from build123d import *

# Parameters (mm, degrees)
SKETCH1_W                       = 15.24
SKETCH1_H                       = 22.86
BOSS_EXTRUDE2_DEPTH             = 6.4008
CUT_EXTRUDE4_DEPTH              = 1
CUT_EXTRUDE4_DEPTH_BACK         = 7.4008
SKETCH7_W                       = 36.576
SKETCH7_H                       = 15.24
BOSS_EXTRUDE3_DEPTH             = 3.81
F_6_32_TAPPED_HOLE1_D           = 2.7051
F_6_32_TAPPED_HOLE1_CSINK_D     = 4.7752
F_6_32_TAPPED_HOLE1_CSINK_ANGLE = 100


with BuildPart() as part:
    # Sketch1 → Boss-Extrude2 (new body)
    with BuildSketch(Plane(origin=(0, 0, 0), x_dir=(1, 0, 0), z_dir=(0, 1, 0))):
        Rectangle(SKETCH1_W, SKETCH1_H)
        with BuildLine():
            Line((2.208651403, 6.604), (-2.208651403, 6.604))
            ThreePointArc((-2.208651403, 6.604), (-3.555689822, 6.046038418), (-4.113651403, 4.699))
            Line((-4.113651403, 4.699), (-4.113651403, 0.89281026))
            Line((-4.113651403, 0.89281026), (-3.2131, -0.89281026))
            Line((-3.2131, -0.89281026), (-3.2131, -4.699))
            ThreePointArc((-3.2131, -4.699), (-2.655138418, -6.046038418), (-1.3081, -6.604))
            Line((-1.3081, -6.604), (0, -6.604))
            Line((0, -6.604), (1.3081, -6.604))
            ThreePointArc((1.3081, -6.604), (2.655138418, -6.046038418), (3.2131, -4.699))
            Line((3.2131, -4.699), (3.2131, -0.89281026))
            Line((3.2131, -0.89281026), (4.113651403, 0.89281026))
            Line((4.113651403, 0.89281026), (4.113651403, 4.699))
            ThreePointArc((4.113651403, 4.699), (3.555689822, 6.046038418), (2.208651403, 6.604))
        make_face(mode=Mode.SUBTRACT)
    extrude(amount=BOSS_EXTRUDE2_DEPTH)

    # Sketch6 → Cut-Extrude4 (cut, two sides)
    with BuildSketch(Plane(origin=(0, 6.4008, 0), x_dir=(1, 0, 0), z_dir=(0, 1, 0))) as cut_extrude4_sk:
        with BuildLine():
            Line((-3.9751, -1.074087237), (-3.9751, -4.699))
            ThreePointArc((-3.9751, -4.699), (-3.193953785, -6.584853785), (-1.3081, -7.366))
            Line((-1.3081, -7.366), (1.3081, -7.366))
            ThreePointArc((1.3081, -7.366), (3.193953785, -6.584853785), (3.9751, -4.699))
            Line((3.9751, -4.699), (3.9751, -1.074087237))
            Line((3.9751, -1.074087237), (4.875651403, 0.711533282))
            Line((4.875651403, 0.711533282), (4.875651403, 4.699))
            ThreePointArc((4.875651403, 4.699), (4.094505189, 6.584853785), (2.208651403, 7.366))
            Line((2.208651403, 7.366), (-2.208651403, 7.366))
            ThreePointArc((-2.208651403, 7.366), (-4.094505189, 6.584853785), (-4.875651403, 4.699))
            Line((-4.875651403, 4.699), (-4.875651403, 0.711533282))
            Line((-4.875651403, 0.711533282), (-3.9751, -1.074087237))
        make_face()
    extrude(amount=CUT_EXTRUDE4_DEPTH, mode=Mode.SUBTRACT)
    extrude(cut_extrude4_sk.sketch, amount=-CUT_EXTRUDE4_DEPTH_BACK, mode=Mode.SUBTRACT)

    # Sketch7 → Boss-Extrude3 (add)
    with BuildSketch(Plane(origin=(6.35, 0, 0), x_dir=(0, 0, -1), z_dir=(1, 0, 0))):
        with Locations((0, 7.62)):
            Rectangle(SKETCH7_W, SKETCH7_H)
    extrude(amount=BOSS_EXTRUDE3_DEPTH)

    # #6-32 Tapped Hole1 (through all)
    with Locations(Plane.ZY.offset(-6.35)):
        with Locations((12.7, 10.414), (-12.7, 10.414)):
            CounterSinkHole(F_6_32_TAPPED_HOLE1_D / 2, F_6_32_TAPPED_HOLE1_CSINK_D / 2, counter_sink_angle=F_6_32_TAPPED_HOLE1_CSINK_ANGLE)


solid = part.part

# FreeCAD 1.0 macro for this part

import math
import FreeCAD as App
import Part
import Sketcher
Q = App.Units.Quantity

doc = App.newDocument("Part")
body = doc.addObject("PartDesign::Body", "Body")

sketch1 = body.newObject("Sketcher::SketchObject", "Sketch")
sketch1.AttachmentSupport = (doc.getObject("XZ_Plane"), [""])
sketch1.MapMode = "FlatFace"
sketch1.addGeometry([
    Part.LineSegment(App.Vector(-7.62, -11.43, 0), App.Vector(-7.62, 11.43, 0)),
    Part.LineSegment(App.Vector(-7.62, 11.43, 0), App.Vector(7.62, 11.43, 0)),
    Part.LineSegment(App.Vector(7.62, 11.43, 0), App.Vector(7.62, -11.43, 0)),
    Part.LineSegment(App.Vector(7.62, -11.43, 0), App.Vector(-7.62, -11.43, 0)),
    Part.LineSegment(App.Vector(-2.208651, -6.604, 0), App.Vector(2.208651, -6.604, 0)),
    Part.ArcOfCircle(Part.Circle(App.Vector(2.208651, -4.699, 0), App.Vector(0, 0, 1), 1.905), math.radians(-90), math.radians(0)),
    Part.LineSegment(App.Vector(4.113651, -4.699, 0), App.Vector(4.113651, -0.89281, 0)),
    Part.LineSegment(App.Vector(4.113651, -0.89281, 0), App.Vector(3.2131, 0.89281, 0)),
    Part.LineSegment(App.Vector(3.2131, 0.89281, 0), App.Vector(3.2131, 4.699, 0)),
    Part.ArcOfCircle(Part.Circle(App.Vector(1.3081, 4.699, 0), App.Vector(0, 0, 1), 1.905), math.radians(0), math.radians(90)),
    Part.LineSegment(App.Vector(1.3081, 6.604, 0), App.Vector(-1.3081, 6.604, 0)),
    Part.ArcOfCircle(Part.Circle(App.Vector(-1.3081, 4.699, 0), App.Vector(0, 0, 1), 1.905), math.radians(90), math.radians(180)),
    Part.LineSegment(App.Vector(-3.2131, 4.699, 0), App.Vector(-3.2131, 0.89281, 0)),
    Part.LineSegment(App.Vector(-3.2131, 0.89281, 0), App.Vector(-4.113651, -0.89281, 0)),
    Part.LineSegment(App.Vector(-4.113651, -0.89281, 0), App.Vector(-4.113651, -4.699, 0)),
    Part.ArcOfCircle(Part.Circle(App.Vector(-2.208651, -4.699, 0), App.Vector(0, 0, 1), 1.905), math.radians(180), math.radians(270)),
], False)
sketch1.addConstraint([
    Sketcher.Constraint("Coincident", 0, 2, 1, 1),
    Sketcher.Constraint("Coincident", 1, 2, 2, 1),
    Sketcher.Constraint("Coincident", 2, 2, 3, 1),
    Sketcher.Constraint("Coincident", 3, 2, 0, 1),
    Sketcher.Constraint("Tangent", 4, 2, 5, 1),
    Sketcher.Constraint("Tangent", 5, 2, 6, 1),
    Sketcher.Constraint("Coincident", 6, 2, 7, 1),
    Sketcher.Constraint("Coincident", 7, 2, 8, 1),
    Sketcher.Constraint("Tangent", 8, 2, 9, 1),
    Sketcher.Constraint("Tangent", 9, 2, 10, 1),
    Sketcher.Constraint("Tangent", 10, 2, 11, 1),
    Sketcher.Constraint("Tangent", 11, 2, 12, 1),
    Sketcher.Constraint("Coincident", 12, 2, 13, 1),
    Sketcher.Constraint("Coincident", 13, 2, 14, 1),
    Sketcher.Constraint("Tangent", 14, 2, 15, 1),
    Sketcher.Constraint("Tangent", 15, 2, 4, 1),
    Sketcher.Constraint("Vertical", 0),
    Sketcher.Constraint("Horizontal", 1),
    Sketcher.Constraint("Vertical", 2),
    Sketcher.Constraint("Horizontal", 3),
    Sketcher.Constraint("Horizontal", 4),
    Sketcher.Constraint("Vertical", 6),
    Sketcher.Constraint("Vertical", 8),
    Sketcher.Constraint("Horizontal", 10),
    Sketcher.Constraint("Vertical", 12),
    Sketcher.Constraint("Vertical", 14),
    Sketcher.Constraint("Equal", 5, 9),
    Sketcher.Constraint("Equal", 9, 11),
    Sketcher.Constraint("Equal", 11, 15),
    Sketcher.Constraint("Symmetric", 0, 2, 2, 2, -1, 1),
    Sketcher.Constraint("Symmetric", 7, 2, 12, 2, -2),
    Sketcher.Constraint("Symmetric", 6, 2, 13, 2, -2),
    Sketcher.Constraint("Equal", 6, 8),
    Sketcher.Constraint("DistanceX", 1, 1, 1, 2, Q("0.6 in")),
    Sketcher.Constraint("DistanceY", 0, 1, 0, 2, Q("0.9 in")),
    Sketcher.Constraint("Radius", 5, Q("0.075 in")),
    Sketcher.Constraint("DistanceX", 10, 2, 10, 1, Q("0.103 in")),
    Sketcher.Constraint("DistanceY", 4, 2, -1, 1, Q("0.26 in")),
    Sketcher.Constraint("DistanceY", -1, 1, 9, 2, Q("0.26 in")),
    Sketcher.Constraint("DistanceY", 6, 2, 7, 2, Q("0.0703 in")),
    Sketcher.Constraint("Distance", 7, Q("1.999858 mm")),
])
pad1 = body.newObject("PartDesign::Pad", "Pad")
pad1.Profile = sketch1
pad1.Length = Q("0.252 in")
pad1.Reversed = True

sketch2 = body.newObject("Sketcher::SketchObject", "Sketch001")
sketch2.AttachmentSupport = (doc.getObject("XZ_Plane"), [""])
sketch2.MapMode = "FlatFace"
sketch2.AttachmentOffset = App.Placement(App.Vector(0, 0, -0.252 * 25.4), App.Rotation())
sketch2.addGeometry([
    Part.LineSegment(App.Vector(-3.9751, 1.074087, 0), App.Vector(-3.9751, 4.699, 0)),
    Part.ArcOfCircle(Part.Circle(App.Vector(-1.3081, 4.699, 0), App.Vector(0, 0, 1), 2.667), math.radians(90), math.radians(180)),
    Part.LineSegment(App.Vector(-1.3081, 7.366, 0), App.Vector(1.3081, 7.366, 0)),
    Part.ArcOfCircle(Part.Circle(App.Vector(1.3081, 4.699, 0), App.Vector(0, 0, 1), 2.667), math.radians(0), math.radians(90)),
    Part.LineSegment(App.Vector(3.9751, 4.699, 0), App.Vector(3.9751, 1.074087, 0)),
    Part.LineSegment(App.Vector(3.9751, 1.074087, 0), App.Vector(4.875651, -0.711533, 0)),
    Part.LineSegment(App.Vector(4.875651, -0.711533, 0), App.Vector(4.875651, -4.699, 0)),
    Part.ArcOfCircle(Part.Circle(App.Vector(2.208651, -4.699, 0), App.Vector(0, 0, 1), 2.667), math.radians(-90), math.radians(0)),
    Part.LineSegment(App.Vector(2.208651, -7.366, 0), App.Vector(-2.208651, -7.366, 0)),
    Part.ArcOfCircle(Part.Circle(App.Vector(-2.208651, -4.699, 0), App.Vector(0, 0, 1), 2.667), math.radians(180), math.radians(270)),
    Part.LineSegment(App.Vector(-4.875651, -4.699, 0), App.Vector(-4.875651, -0.711533, 0)),
    Part.LineSegment(App.Vector(-4.875651, -0.711533, 0), App.Vector(-3.9751, 1.074087, 0)),
], False)
sketch2.addConstraint([
    Sketcher.Constraint("Tangent", 0, 2, 1, 2),
    Sketcher.Constraint("Tangent", 1, 1, 2, 1),
    Sketcher.Constraint("Tangent", 2, 2, 3, 2),
    Sketcher.Constraint("Tangent", 3, 1, 4, 1),
    Sketcher.Constraint("Coincident", 4, 2, 5, 1),
    Sketcher.Constraint("Coincident", 5, 2, 6, 1),
    Sketcher.Constraint("Tangent", 6, 2, 7, 2),
    Sketcher.Constraint("Tangent", 7, 1, 8, 1),
    Sketcher.Constraint("Tangent", 8, 2, 9, 2),
    Sketcher.Constraint("Tangent", 9, 1, 10, 1),
    Sketcher.Constraint("Coincident", 10, 2, 11, 1),
    Sketcher.Constraint("Coincident", 11, 2, 0, 1),
    Sketcher.Constraint("Vertical", 0),
    Sketcher.Constraint("Horizontal", 2),
    Sketcher.Constraint("Vertical", 4),
    Sketcher.Constraint("Vertical", 6),
    Sketcher.Constraint("Horizontal", 8),
    Sketcher.Constraint("Vertical", 10),
    Sketcher.Constraint("Equal", 1, 3),
    Sketcher.Constraint("Equal", 3, 7),
    Sketcher.Constraint("Equal", 7, 9),
    Sketcher.Constraint("Symmetric", 5, 2, 10, 2, -2),
    Sketcher.Constraint("Symmetric", 4, 2, 11, 2, -2),
    Sketcher.Constraint("Radius", 1, Q("0.105 in")),
    Sketcher.Constraint("DistanceX", 2, 1, 2, 2, Q("0.103 in")),
    Sketcher.Constraint("DistanceY", -1, 1, 1, 1, Q("0.29 in")),
    Sketcher.Constraint("DistanceY", 7, 1, -1, 1, Q("0.29 in")),
    Sketcher.Constraint("DistanceY", 5, 2, 4, 2, Q("0.0703 in")),
    Sketcher.Constraint("Distance", 5, Q("1.999858 mm")),
    Sketcher.Constraint("DistanceY", 0, 1, 0, 2, Q("3.624913 mm")),
])
pocket1 = body.newObject("PartDesign::Pocket", "Pocket")
pocket1.Profile = sketch2
pocket1.Type = "ThroughAll"
pocket1.Midplane = True

sketch3 = body.newObject("Sketcher::SketchObject", "Sketch002")
sketch3.AttachmentSupport = (doc.getObject("YZ_Plane"), [""])
sketch3.MapMode = "FlatFace"
sketch3.AttachmentOffset = App.Placement(App.Vector(0, 0, 0.25 * 25.4), App.Rotation())
sketch3.addGeometry([
    Part.LineSegment(App.Vector(15.24, 18.288, 0), App.Vector(0, 18.288, 0)),
    Part.LineSegment(App.Vector(0, 18.288, 0), App.Vector(0, -18.288, 0)),
    Part.LineSegment(App.Vector(0, -18.288, 0), App.Vector(15.24, -18.288, 0)),
    Part.LineSegment(App.Vector(15.24, -18.288, 0), App.Vector(15.24, 18.288, 0)),
], False)
sketch3.addConstraint([
    Sketcher.Constraint("Coincident", 0, 2, 1, 1),
    Sketcher.Constraint("Coincident", 1, 2, 2, 1),
    Sketcher.Constraint("Coincident", 2, 2, 3, 1),
    Sketcher.Constraint("Coincident", 3, 2, 0, 1),
    Sketcher.Constraint("Horizontal", 0),
    Sketcher.Constraint("Vertical", 1),
    Sketcher.Constraint("Horizontal", 2),
    Sketcher.Constraint("Vertical", 3),
    Sketcher.Constraint("Symmetric", 0, 2, 1, 2, -1, 1),
    Sketcher.Constraint("DistanceX", 0, 2, 0, 1, Q("0.6 in")),
    Sketcher.Constraint("DistanceY", 1, 2, 1, 1, Q("1.44 in")),
])
pad2 = body.newObject("PartDesign::Pad", "Pad001")
pad2.Profile = sketch3
pad2.Length = Q("0.15 in")

sketch4 = body.newObject("Sketcher::SketchObject", "Sketch003")
sketch4.AttachmentSupport = (doc.getObject("YZ_Plane"), [""])
sketch4.MapMode = "FlatFace"
sketch4.AttachmentOffset = App.Placement(App.Vector(0, 0, 0.25 * 25.4), App.Rotation())
sketch4.addGeometry([
    Part.Circle(App.Vector(10.414, 12.7, 0), App.Vector(0, 0, 1), 1.35255),
    Part.Circle(App.Vector(10.414, -12.7, 0), App.Vector(0, 0, 1), 1.35255),
], False)
sketch4.addConstraint([
    Sketcher.Constraint("Equal", 0, 1),
    Sketcher.Constraint("Symmetric", 0, 3, 1, 3, -1),
    Sketcher.Constraint("DistanceY", 1, 3, 0, 3, Q("1 in")),
    Sketcher.Constraint("Diameter", 0, Q("0.1065 in")),
    Sketcher.Constraint("DistanceX", -1, 1, 0, 3, Q("0.41 in")),
])
doc.recompute()
hole = body.newObject("PartDesign::Hole", "Hole")
hole.Profile = sketch4
hole.ThreadType = "None"
hole.Diameter = Q("0.1065 in")
hole.DepthType = "ThroughAll"
hole.HoleCutType = "Countersink"
hole.HoleCutDiameter = Q("0.188 in")
hole.HoleCutCountersinkAngle = 100
hole.Reversed = True

doc.recompute()
